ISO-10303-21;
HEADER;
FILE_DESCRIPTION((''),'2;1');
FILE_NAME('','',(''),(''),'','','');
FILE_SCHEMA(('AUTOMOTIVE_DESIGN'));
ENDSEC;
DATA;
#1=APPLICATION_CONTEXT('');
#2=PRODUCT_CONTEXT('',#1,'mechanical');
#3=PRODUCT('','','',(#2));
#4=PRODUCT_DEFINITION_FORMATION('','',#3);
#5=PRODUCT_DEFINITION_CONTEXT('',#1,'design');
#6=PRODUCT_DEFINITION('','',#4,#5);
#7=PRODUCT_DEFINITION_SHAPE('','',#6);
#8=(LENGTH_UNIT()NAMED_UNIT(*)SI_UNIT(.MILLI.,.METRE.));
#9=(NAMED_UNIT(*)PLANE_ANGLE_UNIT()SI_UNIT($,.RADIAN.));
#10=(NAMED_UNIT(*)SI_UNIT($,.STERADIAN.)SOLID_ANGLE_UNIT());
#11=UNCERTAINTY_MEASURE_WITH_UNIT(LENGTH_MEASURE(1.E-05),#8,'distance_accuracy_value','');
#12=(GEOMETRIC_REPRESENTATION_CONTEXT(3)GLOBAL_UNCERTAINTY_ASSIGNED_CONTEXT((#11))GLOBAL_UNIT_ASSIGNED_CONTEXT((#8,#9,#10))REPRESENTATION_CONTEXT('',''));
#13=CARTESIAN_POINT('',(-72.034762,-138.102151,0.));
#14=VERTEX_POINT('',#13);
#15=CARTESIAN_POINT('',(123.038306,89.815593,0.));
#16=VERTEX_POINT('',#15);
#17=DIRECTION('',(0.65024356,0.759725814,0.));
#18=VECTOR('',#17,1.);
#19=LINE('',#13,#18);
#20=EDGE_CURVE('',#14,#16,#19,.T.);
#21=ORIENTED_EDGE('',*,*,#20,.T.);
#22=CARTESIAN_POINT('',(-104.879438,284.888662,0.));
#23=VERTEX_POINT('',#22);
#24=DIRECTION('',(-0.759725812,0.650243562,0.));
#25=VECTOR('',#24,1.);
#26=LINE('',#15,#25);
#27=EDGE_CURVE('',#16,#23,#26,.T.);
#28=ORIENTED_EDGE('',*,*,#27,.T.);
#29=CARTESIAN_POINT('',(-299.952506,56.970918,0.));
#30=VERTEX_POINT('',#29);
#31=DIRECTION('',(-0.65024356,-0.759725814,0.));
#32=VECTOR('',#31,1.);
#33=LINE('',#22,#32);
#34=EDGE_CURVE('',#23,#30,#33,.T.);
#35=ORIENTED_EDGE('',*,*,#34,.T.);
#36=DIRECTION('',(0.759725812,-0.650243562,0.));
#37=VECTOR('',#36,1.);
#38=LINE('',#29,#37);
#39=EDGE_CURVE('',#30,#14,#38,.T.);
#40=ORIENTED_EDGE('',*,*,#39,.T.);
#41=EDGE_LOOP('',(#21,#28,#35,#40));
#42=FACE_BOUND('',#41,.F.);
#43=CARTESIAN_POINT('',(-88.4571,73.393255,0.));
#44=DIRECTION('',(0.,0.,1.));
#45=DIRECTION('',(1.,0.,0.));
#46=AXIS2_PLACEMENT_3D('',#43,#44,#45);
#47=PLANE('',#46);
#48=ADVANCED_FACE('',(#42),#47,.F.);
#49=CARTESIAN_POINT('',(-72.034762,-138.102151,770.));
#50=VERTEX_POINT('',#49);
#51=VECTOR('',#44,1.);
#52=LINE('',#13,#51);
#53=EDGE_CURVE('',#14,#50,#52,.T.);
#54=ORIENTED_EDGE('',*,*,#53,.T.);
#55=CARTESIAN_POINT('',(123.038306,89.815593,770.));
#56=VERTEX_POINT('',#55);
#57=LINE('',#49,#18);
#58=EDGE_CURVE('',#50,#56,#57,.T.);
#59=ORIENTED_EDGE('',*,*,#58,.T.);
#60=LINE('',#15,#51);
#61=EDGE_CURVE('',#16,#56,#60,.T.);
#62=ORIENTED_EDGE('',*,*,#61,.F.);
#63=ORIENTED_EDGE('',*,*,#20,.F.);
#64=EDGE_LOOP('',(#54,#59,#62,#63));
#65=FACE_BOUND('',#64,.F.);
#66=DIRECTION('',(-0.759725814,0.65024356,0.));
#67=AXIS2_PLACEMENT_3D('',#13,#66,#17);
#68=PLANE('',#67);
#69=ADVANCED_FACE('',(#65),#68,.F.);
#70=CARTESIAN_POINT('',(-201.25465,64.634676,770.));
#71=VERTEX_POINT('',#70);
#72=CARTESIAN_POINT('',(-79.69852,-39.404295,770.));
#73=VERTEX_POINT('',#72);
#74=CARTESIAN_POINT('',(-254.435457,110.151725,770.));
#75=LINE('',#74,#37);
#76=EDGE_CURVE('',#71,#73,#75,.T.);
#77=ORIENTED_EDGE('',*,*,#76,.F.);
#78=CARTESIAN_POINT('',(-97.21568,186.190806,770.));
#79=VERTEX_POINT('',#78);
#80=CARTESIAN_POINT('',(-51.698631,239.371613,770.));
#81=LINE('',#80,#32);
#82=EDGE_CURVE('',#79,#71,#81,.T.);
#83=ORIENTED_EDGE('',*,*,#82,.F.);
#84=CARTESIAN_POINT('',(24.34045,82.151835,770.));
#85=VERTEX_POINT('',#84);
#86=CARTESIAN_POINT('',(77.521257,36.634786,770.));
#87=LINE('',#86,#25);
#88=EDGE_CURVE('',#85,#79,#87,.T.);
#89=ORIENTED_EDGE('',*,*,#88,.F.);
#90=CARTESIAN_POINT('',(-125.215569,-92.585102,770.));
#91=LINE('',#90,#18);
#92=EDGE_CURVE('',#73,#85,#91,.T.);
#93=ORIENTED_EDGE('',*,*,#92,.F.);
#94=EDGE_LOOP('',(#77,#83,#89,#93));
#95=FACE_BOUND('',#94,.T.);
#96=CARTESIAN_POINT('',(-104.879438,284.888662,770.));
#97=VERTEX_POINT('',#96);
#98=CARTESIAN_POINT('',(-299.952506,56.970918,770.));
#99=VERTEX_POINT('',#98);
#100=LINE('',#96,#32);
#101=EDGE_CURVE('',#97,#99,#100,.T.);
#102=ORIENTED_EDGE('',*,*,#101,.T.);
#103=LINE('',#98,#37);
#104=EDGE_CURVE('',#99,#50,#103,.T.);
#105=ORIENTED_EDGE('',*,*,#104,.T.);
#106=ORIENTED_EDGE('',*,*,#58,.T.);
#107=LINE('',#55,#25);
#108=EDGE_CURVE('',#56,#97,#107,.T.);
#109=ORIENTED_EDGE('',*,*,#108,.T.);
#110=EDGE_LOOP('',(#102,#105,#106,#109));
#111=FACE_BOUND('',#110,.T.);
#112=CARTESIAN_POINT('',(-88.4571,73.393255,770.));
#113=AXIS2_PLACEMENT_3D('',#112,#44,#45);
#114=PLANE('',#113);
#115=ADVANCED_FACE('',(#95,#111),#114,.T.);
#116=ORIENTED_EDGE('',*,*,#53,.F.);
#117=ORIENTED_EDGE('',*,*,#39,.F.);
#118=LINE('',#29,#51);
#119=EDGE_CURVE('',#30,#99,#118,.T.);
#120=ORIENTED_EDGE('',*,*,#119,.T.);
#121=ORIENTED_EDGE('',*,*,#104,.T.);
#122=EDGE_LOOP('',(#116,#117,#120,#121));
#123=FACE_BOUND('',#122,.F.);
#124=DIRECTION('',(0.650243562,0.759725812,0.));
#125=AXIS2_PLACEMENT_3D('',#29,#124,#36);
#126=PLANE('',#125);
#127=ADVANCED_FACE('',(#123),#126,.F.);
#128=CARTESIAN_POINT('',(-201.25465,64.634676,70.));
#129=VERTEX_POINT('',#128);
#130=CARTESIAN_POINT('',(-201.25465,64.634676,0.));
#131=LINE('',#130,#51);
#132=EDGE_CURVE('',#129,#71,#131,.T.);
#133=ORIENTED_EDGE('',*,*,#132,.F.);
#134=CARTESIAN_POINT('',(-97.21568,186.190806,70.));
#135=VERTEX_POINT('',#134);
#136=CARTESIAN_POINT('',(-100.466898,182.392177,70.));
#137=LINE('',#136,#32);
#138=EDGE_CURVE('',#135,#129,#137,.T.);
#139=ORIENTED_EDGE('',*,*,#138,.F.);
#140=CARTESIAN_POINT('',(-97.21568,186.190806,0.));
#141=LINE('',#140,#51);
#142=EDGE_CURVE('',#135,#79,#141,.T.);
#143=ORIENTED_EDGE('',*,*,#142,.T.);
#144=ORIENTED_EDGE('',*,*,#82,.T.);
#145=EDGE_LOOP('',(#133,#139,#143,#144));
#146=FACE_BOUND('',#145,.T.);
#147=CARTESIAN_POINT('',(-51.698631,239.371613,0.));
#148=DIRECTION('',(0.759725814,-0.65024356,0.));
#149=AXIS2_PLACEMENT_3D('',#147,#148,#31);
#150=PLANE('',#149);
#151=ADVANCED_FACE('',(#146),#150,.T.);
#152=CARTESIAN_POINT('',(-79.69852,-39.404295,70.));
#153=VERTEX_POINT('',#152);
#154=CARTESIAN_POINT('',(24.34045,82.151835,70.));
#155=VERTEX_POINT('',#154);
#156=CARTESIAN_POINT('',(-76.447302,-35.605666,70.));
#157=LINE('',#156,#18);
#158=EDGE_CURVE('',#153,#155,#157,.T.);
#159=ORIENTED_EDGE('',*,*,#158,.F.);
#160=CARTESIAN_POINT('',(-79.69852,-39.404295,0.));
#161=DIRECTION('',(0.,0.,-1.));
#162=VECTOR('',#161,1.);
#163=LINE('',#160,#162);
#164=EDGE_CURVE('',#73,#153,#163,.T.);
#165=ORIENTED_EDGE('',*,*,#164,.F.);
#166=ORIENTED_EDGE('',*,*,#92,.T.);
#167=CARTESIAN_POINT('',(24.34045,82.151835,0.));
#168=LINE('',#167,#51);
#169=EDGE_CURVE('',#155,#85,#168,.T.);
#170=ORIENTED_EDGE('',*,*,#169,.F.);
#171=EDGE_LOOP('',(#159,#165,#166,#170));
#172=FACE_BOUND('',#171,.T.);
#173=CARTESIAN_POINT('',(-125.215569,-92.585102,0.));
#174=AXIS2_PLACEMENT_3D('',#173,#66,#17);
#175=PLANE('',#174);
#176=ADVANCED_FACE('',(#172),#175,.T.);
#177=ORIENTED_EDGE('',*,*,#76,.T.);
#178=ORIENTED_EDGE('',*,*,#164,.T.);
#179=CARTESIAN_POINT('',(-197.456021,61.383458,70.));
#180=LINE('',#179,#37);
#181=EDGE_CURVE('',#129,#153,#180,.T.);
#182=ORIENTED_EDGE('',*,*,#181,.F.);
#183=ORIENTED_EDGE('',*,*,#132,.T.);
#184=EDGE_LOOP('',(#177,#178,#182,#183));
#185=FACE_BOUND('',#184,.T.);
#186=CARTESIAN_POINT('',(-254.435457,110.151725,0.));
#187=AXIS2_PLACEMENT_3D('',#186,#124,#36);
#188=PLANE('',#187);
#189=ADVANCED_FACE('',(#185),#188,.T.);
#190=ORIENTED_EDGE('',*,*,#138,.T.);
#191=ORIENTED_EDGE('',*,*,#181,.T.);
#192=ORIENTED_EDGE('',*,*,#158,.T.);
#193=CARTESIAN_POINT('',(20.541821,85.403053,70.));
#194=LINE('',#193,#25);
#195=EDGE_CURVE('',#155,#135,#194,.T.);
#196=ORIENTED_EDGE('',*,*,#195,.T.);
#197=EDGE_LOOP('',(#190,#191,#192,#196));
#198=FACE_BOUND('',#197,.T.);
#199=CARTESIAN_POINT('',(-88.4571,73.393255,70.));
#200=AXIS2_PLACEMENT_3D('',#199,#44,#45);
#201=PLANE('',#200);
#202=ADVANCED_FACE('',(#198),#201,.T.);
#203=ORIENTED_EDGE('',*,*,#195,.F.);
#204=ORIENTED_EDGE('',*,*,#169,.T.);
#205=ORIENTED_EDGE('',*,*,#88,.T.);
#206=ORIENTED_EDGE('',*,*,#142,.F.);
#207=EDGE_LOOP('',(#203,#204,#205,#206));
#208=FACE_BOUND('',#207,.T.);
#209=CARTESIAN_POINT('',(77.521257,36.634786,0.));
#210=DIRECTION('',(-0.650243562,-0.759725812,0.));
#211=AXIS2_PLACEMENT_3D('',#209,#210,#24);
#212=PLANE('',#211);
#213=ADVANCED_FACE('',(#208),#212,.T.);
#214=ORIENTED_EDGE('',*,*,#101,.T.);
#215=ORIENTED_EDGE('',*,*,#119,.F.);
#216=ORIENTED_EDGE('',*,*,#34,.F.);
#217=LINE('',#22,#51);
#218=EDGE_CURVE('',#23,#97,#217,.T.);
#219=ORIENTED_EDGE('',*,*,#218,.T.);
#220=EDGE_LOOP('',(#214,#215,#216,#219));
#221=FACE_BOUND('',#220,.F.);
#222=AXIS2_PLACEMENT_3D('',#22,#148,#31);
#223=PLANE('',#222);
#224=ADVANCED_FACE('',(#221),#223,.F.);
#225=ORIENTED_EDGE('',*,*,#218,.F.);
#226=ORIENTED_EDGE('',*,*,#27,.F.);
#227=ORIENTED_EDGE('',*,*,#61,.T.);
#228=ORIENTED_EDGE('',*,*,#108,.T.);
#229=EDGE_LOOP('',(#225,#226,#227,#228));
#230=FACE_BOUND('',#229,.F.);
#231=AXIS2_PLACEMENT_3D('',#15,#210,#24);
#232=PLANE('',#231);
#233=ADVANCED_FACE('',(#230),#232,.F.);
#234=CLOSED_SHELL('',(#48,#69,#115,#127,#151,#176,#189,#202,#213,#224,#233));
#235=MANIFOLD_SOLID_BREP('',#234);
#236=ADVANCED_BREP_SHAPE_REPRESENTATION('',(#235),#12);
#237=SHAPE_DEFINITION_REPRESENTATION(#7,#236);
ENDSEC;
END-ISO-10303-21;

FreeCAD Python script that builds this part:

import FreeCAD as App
import Part
import Sketcher


def faces_at(feature, points):
    """Names of the faces that lie closest to the given points."""
    faces = feature.Shape.Faces
    near = lambda p: min(range(len(faces)), key=lambda i: faces[i].distToShape(Part.Vertex(*p))[0])
    return sorted({f"Face{near(p) + 1}" for p in points})


def add_polygon(sketch, points):
    """Adds a closed chain of lines whose ends are joined by coincident constraints."""
    first, n = sketch.GeometryCount, len(points)
    for a, b in zip(points, points[1:] + points[:1]):
        sketch.addGeometry(Part.LineSegment(App.Vector(*a, 0), App.Vector(*b, 0)), False)
    for i in range(n):
        sketch.addConstraint(Sketcher.Constraint("Coincident", first + i, 2, first + (i + 1) % n, 1))

doc = App.newDocument("Part")
body = doc.addObject("PartDesign::Body", "Body")

# Sketch on XY plane
sketch1 = body.newObject("Sketcher::SketchObject", "Sketch")
sketch1.AttachmentSupport = (doc.getObject("XY_Plane"), [""])
sketch1.MapMode = "FlatFace"
add_polygon(sketch1, [(-72, -138), (123, 90), (-105, 285), (-300, 57)])  # lines 0-3
sketch1.addConstraint(Sketcher.Constraint("Perpendicular", 0, 1))
sketch1.addConstraint(Sketcher.Constraint("Perpendicular", 1, 2))
sketch1.addConstraint(Sketcher.Constraint("Perpendicular", 2, 3))
sketch1.addConstraint(Sketcher.Constraint("Equal", 0, 1))
sketch1.addConstraint(Sketcher.Constraint("Distance", 0, 300.0))
sketch1.addConstraint(Sketcher.Constraint("DistanceY", -1, 1, 1, 2, 284.888662))
sketch1.addConstraint(Sketcher.Constraint("DistanceX", 3, 2, -1, 1, 72.034762))
sketch1.addConstraint(Sketcher.Constraint("DistanceY", 3, 2, -1, 1, 138.102151))
pad1 = body.newObject("PartDesign::Pad", "Pad")
pad1.Profile = sketch1
pad1.Length = 770
doc.recompute()

thickness = body.newObject("PartDesign::Thickness", "Thickness")
thickness.Base = (pad1, faces_at(pad1, [(-88.457, 73.393, 770)]))
thickness.Value = 70
thickness.Reversed = True
thickness.Join = "Arc"

doc.recompute()
